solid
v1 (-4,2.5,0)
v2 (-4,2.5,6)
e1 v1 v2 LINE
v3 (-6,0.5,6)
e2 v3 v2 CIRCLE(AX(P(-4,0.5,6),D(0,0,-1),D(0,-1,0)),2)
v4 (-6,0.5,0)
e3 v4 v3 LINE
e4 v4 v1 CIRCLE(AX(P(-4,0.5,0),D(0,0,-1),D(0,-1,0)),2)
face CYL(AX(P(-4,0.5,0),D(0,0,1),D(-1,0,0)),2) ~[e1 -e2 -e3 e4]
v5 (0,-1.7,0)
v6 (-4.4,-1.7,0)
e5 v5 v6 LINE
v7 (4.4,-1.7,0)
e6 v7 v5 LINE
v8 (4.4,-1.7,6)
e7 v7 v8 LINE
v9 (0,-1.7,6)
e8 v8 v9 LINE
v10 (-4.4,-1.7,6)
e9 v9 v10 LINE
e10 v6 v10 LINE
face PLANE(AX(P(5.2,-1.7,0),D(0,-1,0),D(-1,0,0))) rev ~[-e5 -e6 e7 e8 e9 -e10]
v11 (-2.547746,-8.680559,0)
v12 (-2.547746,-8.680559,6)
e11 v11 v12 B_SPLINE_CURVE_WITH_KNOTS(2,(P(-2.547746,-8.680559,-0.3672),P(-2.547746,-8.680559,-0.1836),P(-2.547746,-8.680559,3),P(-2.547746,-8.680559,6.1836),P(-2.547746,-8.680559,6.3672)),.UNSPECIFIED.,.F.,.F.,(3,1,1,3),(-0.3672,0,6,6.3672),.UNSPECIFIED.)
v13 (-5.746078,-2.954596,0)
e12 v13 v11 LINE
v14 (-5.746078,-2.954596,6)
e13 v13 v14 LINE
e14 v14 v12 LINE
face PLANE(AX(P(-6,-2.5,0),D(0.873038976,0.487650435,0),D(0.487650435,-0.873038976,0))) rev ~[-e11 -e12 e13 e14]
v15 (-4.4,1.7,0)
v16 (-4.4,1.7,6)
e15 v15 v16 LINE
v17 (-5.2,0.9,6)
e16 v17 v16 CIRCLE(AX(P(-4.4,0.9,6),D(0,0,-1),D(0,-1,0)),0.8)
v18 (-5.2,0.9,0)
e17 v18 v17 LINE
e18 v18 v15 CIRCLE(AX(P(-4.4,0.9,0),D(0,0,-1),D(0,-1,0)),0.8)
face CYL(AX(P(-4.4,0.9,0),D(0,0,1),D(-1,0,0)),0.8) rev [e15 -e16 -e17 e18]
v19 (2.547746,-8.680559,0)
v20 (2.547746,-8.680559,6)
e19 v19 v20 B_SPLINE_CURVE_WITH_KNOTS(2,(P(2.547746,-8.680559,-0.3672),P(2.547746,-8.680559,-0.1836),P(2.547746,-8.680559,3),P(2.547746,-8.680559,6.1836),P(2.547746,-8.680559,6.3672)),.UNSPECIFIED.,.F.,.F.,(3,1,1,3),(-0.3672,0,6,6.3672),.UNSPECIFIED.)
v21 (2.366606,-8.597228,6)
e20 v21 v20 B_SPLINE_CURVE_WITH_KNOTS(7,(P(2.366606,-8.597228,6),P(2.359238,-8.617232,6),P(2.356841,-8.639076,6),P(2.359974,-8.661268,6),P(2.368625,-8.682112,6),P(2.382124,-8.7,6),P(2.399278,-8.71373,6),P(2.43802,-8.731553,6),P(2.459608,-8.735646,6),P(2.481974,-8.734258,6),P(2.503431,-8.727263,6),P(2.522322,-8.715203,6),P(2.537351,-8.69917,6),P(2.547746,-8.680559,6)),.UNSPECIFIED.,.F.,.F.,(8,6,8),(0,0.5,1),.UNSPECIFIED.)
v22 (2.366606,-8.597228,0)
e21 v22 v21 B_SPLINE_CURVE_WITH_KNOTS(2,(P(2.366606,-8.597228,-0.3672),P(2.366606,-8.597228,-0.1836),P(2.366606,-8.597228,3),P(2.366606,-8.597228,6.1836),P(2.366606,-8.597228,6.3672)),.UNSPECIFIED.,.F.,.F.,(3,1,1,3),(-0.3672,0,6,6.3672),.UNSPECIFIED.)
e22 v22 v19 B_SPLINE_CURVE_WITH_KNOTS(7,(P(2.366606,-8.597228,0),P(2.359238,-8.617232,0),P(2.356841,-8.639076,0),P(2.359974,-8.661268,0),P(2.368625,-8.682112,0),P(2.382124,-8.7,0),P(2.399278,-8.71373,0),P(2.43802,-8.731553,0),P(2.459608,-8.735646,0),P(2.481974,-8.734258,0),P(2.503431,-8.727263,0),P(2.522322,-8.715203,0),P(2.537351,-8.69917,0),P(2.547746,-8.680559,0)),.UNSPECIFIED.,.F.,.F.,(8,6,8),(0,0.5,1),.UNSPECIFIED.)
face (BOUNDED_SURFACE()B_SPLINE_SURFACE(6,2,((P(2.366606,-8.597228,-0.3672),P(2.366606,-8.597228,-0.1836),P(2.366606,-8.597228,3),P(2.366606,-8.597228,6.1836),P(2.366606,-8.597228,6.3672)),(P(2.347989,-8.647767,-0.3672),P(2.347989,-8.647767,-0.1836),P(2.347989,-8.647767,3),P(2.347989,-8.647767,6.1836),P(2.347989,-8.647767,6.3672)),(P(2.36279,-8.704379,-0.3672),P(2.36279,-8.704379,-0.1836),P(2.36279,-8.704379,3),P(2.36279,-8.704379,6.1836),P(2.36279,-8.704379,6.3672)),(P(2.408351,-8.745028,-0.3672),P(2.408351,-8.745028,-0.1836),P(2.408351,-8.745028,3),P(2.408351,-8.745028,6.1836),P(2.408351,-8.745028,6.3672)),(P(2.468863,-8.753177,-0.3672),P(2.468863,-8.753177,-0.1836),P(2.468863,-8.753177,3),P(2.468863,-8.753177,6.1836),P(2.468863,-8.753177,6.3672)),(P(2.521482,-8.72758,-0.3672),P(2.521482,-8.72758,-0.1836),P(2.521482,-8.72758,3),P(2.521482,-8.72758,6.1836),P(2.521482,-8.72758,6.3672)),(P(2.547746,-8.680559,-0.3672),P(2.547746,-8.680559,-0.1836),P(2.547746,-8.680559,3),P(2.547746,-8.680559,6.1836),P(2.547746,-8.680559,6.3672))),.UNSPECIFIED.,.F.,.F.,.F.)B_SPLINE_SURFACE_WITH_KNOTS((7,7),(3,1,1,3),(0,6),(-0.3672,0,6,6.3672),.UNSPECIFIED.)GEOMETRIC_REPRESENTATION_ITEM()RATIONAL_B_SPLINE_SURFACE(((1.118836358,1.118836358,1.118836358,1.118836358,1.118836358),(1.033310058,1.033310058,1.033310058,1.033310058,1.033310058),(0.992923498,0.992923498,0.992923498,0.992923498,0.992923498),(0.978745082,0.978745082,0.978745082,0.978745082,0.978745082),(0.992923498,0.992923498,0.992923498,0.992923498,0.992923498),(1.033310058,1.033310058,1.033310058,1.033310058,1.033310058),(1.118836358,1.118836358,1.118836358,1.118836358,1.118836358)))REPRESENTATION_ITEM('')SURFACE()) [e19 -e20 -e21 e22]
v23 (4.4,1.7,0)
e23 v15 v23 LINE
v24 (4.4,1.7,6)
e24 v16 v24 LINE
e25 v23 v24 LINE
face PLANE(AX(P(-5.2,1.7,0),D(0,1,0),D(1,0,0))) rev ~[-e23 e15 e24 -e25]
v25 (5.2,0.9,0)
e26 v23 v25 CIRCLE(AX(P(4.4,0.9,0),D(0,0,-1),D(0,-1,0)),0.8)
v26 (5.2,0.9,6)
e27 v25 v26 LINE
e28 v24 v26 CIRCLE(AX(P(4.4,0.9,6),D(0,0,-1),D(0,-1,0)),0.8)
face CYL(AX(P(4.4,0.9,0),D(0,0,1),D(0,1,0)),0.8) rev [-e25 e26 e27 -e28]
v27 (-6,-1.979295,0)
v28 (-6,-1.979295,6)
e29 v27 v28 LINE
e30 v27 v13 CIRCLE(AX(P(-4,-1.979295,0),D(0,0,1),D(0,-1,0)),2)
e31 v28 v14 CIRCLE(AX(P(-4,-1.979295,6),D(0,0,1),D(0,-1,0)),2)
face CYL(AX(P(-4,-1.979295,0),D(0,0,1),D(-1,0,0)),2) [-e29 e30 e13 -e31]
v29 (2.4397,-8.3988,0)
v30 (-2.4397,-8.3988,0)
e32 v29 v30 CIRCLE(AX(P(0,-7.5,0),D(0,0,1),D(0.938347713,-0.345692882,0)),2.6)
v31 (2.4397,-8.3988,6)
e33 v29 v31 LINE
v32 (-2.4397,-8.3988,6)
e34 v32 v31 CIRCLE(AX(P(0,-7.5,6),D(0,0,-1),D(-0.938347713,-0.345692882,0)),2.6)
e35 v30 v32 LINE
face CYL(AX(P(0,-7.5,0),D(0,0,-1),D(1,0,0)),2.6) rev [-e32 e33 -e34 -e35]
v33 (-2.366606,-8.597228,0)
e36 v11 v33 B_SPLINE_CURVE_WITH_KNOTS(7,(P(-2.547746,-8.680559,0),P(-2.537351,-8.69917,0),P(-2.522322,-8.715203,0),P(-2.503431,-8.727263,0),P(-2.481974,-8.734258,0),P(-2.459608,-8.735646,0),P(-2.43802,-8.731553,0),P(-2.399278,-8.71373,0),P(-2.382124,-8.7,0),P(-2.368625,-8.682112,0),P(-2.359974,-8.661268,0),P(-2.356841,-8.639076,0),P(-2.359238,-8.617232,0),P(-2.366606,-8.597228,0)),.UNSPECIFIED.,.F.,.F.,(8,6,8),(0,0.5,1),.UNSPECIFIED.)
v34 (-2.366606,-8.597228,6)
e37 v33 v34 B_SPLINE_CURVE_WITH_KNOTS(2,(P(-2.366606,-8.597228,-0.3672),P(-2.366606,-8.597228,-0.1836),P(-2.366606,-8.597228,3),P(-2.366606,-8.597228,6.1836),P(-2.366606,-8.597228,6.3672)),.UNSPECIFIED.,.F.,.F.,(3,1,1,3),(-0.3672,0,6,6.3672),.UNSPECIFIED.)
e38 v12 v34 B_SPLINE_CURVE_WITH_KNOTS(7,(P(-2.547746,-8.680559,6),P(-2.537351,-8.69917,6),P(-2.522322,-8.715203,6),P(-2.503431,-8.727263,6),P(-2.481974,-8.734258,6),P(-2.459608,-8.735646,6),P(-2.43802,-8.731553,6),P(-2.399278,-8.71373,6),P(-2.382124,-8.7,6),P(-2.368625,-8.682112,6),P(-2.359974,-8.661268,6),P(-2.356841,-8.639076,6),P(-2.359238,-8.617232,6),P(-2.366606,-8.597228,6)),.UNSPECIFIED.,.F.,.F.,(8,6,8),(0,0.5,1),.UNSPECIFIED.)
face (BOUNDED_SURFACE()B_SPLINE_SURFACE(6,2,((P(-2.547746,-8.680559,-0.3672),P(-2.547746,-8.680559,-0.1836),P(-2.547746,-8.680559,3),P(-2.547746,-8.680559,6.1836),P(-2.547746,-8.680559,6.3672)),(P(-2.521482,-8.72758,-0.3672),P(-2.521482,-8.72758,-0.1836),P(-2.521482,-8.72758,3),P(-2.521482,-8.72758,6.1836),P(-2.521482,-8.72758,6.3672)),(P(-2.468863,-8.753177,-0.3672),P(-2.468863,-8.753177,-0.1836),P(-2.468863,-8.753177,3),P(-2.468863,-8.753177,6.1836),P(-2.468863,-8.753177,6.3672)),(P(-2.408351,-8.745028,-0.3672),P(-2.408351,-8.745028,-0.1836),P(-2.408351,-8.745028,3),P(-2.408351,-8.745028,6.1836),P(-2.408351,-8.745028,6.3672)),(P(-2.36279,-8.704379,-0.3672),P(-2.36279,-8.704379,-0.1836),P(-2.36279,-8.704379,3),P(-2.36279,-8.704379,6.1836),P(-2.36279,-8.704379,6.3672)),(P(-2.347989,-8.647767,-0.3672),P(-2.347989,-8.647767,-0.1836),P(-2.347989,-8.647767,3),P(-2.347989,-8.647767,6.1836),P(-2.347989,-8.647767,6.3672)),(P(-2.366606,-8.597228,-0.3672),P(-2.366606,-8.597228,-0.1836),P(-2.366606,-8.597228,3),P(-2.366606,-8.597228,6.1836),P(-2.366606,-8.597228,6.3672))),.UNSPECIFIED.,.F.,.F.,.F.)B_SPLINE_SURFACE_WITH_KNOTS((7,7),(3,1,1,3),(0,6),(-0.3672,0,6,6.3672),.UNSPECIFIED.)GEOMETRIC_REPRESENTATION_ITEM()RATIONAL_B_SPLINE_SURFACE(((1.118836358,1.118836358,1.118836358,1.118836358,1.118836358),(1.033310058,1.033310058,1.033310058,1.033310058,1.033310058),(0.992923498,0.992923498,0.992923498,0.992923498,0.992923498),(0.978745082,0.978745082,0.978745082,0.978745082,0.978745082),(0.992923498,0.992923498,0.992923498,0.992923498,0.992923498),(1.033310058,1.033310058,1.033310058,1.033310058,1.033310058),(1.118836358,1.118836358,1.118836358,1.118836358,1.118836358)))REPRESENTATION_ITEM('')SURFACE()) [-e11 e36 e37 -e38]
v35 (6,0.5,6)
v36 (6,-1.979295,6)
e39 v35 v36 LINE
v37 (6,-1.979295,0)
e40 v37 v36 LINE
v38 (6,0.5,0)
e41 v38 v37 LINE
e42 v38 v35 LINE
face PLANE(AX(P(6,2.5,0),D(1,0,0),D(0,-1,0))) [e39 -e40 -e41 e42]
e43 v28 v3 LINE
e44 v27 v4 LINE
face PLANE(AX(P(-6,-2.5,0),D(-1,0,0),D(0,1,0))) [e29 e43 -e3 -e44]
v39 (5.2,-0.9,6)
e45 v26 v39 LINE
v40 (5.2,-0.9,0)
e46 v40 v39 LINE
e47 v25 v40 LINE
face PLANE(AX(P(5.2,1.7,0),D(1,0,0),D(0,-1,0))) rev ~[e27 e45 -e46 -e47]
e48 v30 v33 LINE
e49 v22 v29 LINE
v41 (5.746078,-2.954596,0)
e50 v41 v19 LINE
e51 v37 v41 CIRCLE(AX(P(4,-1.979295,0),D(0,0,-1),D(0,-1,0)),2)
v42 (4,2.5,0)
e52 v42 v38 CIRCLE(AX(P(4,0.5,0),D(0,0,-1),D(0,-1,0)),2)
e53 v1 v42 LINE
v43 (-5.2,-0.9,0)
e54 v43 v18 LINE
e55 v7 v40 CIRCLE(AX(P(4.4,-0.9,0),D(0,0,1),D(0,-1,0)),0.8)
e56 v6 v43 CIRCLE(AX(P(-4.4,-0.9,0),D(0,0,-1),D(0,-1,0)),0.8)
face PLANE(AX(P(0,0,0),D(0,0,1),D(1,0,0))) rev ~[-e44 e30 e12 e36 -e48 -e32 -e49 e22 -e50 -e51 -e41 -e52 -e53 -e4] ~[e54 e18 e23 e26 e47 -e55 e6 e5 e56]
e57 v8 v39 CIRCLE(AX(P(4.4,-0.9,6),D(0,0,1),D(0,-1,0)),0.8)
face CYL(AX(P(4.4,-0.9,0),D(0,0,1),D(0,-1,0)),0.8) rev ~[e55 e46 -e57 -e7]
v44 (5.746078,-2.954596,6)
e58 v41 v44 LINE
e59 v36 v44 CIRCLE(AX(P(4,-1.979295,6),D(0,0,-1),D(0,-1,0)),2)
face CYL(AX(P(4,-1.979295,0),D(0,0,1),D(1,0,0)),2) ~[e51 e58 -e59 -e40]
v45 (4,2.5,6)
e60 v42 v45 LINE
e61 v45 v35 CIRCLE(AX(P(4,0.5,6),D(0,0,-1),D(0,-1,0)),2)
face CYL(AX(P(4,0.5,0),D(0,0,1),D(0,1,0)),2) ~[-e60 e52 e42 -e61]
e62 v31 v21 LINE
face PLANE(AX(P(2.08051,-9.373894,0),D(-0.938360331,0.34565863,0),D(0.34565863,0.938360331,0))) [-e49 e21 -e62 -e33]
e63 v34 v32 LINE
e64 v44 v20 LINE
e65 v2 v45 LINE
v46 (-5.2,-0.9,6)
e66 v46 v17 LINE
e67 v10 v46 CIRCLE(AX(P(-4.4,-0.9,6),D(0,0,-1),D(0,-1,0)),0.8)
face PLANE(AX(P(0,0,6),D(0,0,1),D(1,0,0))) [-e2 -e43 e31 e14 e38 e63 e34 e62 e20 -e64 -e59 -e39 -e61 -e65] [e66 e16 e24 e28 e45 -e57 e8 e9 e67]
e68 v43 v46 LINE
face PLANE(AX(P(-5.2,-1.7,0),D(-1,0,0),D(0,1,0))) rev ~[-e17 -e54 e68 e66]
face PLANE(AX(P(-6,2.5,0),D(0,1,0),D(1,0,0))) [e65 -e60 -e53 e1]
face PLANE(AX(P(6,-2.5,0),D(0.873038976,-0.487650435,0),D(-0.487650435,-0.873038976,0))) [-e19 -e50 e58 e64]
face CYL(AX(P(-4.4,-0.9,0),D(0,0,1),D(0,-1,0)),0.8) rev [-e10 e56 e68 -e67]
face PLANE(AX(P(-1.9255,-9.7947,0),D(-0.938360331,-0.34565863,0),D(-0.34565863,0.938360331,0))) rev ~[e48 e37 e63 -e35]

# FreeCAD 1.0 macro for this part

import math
import FreeCAD as App
import Part
import Sketcher
Q = App.Units.Quantity


def edges_at(feature, points):
    """Names of the edges that pass closest to the given points."""
    edges = feature.Shape.Edges
    near = lambda p: min(range(len(edges)), key=lambda i: edges[i].distToShape(Part.Vertex(*p))[0])
    return sorted({f"Edge{near(p) + 1}" for p in points})


def add_polygon(sketch, points):
    """Adds a closed chain of lines whose ends are joined by coincident constraints."""
    first, n = sketch.GeometryCount, len(points)
    for a, b in zip(points, points[1:] + points[:1]):
        sketch.addGeometry(Part.LineSegment(App.Vector(*a, 0), App.Vector(*b, 0)), False)
    for i in range(n):
        sketch.addConstraint(Sketcher.Constraint("Coincident", first + i, 2, first + (i + 1) % n, 1))

doc = App.newDocument("Part")
body = doc.addObject("PartDesign::Body", "Body")

# Sketch on XY plane
sketch1 = body.newObject("Sketcher::SketchObject", "Sketch")
sketch1.AttachmentSupport = (doc.getObject("XY_Plane"), [""])
sketch1.MapMode = "FlatFace"
sketch1.addGeometry(Part.LineSegment(App.Vector(-6, 2.5, 0), App.Vector(-6, -2.5, 0)), False)  # 0
sketch1.addGeometry(Part.LineSegment(App.Vector(-6, -2.5, 0), App.Vector(-2.4445, -8.8654, 0)), False)  # 1
sketch1.addGeometry(Part.LineSegment(App.Vector(-2.4445, -8.8654, 0), App.Vector(-1.9255, -9.7947, 0)), False)  # 2
sketch1.addGeometry(Part.LineSegment(App.Vector(-1.9255, -9.7947, 0), App.Vector(-2.4397, -8.3988, 0)), False)  # 3
sketch1.addGeometry(Part.ArcOfCircle(Part.Circle(App.Vector(0, -7.5, 0), App.Vector(0, 0, 1), 2.6), math.radians(-20.224098), math.radians(200.224098)), False)  # 4
sketch1.addGeometry(Part.LineSegment(App.Vector(2.4397, -8.3988, 0), App.Vector(1.9255, -9.7947, 0)), False)  # 5
sketch1.addGeometry(Part.LineSegment(App.Vector(1.9255, -9.7947, 0), App.Vector(2.4445, -8.8654, 0)), False)  # 6
sketch1.addGeometry(Part.LineSegment(App.Vector(2.4445, -8.8654, 0), App.Vector(6, -2.5, 0)), False)  # 7
sketch1.addGeometry(Part.LineSegment(App.Vector(6, -2.5, 0), App.Vector(6, 2.5, 0)), False)  # 8
sketch1.addGeometry(Part.LineSegment(App.Vector(6, 2.5, 0), App.Vector(-6, 2.5, 0)), False)  # 9
add_polygon(sketch1, [(-5.2, -1.7), (-5.2, 1.7), (5.2, 1.7), (5.2, -1.7), (0, -1.7)])  # lines 10-14
sketch1.addConstraint([
    Sketcher.Constraint("Coincident", 0, 2, 1, 1),
    Sketcher.Constraint("Coincident", 1, 2, 2, 1),
    Sketcher.Constraint("Coincident", 2, 2, 3, 1),
    Sketcher.Constraint("Tangent", 3, 2, 4, 2),
    Sketcher.Constraint("Tangent", 4, 1, 5, 1),
    Sketcher.Constraint("Coincident", 5, 2, 6, 1),
    Sketcher.Constraint("Coincident", 6, 2, 7, 1),
    Sketcher.Constraint("Coincident", 7, 2, 8, 1),
    Sketcher.Constraint("Coincident", 8, 2, 9, 1),
    Sketcher.Constraint("Coincident", 9, 2, 0, 1),
    Sketcher.Constraint("Vertical", 0),
    Sketcher.Constraint("Vertical", 8),
    Sketcher.Constraint("Horizontal", 9),
    Sketcher.Constraint("Vertical", 10),
    Sketcher.Constraint("Horizontal", 11),
    Sketcher.Constraint("Vertical", 12),
    Sketcher.Constraint("Horizontal", 13),
    Sketcher.Constraint("Horizontal", 14),
    Sketcher.Constraint("Symmetric", 0, 2, 8, 2, -1, 1),
    Sketcher.Constraint("Symmetric", 10, 2, 12, 2, -1, 1),
    Sketcher.Constraint("Symmetric", 3, 2, 4, 1, -2),
    Sketcher.Constraint("Symmetric", 1, 2, 6, 2, -2),
    Sketcher.Constraint("PointOnObject", 13, 2, -2),
    Sketcher.Constraint("Parallel", 1, 2),
    Sketcher.Constraint("Parallel", 6, 7),
    Sketcher.Constraint("Horizontal", 2, 2, 5, 2),
    Sketcher.Constraint("Radius", 4, Q("2.6 mm")),
    Sketcher.Constraint("DistanceX", 9, 2, 9, 1, Q("12 mm")),
    Sketcher.Constraint("DistanceY", 0, 2, 0, 1, Q("5 mm")),
    Sketcher.Constraint("DistanceX", 11, 1, 11, 2, Q("10.4 mm")),
    Sketcher.Constraint("DistanceY", 10, 1, 10, 2, Q("3.4 mm")),
    Sketcher.Constraint("DistanceY", 4, 3, 0, 2, Q("5 mm")),
    Sketcher.Constraint("DistanceX", 1, 2, 5, 2, Q("4.37 mm")),
    Sketcher.Constraint("Distance", 1, Q("7.291 mm")),
    Sketcher.Constraint("DistanceX", 1, 2, 2, 2, Q("0.519 mm")),
])
pad1 = body.newObject("PartDesign::Pad", "Pad")
pad1.Profile = sketch1
pad1.Length = 6
doc.recompute()

fillet = body.newObject("PartDesign::Fillet", "Fillet")
fillet.Base = (pad1, edges_at(pad1, [
    (-6, 2.5, 3),
    (6, 2.5, 3),
    (-6, -2.5, 3),
    (6, -2.5, 3),
]))
fillet.Radius = 2
doc.recompute()

fillet2 = body.newObject("PartDesign::Fillet", "Fillet001")
fillet2.Base = (fillet, edges_at(fillet, [(-1.925, -9.795, 3), (1.925, -9.795, 3)]))
fillet2.Radius = 0.1
doc.recompute()

fillet3 = body.newObject("PartDesign::Fillet", "Fillet002")
fillet3.Base = (fillet2, edges_at(fillet2, [
    (5.2, -1.7, 3),
    (5.2, 1.7, 3),
    (-5.2, -1.7, 3),
    (-5.2, 1.7, 3),
]))
fillet3.Radius = 0.8

doc.recompute()
